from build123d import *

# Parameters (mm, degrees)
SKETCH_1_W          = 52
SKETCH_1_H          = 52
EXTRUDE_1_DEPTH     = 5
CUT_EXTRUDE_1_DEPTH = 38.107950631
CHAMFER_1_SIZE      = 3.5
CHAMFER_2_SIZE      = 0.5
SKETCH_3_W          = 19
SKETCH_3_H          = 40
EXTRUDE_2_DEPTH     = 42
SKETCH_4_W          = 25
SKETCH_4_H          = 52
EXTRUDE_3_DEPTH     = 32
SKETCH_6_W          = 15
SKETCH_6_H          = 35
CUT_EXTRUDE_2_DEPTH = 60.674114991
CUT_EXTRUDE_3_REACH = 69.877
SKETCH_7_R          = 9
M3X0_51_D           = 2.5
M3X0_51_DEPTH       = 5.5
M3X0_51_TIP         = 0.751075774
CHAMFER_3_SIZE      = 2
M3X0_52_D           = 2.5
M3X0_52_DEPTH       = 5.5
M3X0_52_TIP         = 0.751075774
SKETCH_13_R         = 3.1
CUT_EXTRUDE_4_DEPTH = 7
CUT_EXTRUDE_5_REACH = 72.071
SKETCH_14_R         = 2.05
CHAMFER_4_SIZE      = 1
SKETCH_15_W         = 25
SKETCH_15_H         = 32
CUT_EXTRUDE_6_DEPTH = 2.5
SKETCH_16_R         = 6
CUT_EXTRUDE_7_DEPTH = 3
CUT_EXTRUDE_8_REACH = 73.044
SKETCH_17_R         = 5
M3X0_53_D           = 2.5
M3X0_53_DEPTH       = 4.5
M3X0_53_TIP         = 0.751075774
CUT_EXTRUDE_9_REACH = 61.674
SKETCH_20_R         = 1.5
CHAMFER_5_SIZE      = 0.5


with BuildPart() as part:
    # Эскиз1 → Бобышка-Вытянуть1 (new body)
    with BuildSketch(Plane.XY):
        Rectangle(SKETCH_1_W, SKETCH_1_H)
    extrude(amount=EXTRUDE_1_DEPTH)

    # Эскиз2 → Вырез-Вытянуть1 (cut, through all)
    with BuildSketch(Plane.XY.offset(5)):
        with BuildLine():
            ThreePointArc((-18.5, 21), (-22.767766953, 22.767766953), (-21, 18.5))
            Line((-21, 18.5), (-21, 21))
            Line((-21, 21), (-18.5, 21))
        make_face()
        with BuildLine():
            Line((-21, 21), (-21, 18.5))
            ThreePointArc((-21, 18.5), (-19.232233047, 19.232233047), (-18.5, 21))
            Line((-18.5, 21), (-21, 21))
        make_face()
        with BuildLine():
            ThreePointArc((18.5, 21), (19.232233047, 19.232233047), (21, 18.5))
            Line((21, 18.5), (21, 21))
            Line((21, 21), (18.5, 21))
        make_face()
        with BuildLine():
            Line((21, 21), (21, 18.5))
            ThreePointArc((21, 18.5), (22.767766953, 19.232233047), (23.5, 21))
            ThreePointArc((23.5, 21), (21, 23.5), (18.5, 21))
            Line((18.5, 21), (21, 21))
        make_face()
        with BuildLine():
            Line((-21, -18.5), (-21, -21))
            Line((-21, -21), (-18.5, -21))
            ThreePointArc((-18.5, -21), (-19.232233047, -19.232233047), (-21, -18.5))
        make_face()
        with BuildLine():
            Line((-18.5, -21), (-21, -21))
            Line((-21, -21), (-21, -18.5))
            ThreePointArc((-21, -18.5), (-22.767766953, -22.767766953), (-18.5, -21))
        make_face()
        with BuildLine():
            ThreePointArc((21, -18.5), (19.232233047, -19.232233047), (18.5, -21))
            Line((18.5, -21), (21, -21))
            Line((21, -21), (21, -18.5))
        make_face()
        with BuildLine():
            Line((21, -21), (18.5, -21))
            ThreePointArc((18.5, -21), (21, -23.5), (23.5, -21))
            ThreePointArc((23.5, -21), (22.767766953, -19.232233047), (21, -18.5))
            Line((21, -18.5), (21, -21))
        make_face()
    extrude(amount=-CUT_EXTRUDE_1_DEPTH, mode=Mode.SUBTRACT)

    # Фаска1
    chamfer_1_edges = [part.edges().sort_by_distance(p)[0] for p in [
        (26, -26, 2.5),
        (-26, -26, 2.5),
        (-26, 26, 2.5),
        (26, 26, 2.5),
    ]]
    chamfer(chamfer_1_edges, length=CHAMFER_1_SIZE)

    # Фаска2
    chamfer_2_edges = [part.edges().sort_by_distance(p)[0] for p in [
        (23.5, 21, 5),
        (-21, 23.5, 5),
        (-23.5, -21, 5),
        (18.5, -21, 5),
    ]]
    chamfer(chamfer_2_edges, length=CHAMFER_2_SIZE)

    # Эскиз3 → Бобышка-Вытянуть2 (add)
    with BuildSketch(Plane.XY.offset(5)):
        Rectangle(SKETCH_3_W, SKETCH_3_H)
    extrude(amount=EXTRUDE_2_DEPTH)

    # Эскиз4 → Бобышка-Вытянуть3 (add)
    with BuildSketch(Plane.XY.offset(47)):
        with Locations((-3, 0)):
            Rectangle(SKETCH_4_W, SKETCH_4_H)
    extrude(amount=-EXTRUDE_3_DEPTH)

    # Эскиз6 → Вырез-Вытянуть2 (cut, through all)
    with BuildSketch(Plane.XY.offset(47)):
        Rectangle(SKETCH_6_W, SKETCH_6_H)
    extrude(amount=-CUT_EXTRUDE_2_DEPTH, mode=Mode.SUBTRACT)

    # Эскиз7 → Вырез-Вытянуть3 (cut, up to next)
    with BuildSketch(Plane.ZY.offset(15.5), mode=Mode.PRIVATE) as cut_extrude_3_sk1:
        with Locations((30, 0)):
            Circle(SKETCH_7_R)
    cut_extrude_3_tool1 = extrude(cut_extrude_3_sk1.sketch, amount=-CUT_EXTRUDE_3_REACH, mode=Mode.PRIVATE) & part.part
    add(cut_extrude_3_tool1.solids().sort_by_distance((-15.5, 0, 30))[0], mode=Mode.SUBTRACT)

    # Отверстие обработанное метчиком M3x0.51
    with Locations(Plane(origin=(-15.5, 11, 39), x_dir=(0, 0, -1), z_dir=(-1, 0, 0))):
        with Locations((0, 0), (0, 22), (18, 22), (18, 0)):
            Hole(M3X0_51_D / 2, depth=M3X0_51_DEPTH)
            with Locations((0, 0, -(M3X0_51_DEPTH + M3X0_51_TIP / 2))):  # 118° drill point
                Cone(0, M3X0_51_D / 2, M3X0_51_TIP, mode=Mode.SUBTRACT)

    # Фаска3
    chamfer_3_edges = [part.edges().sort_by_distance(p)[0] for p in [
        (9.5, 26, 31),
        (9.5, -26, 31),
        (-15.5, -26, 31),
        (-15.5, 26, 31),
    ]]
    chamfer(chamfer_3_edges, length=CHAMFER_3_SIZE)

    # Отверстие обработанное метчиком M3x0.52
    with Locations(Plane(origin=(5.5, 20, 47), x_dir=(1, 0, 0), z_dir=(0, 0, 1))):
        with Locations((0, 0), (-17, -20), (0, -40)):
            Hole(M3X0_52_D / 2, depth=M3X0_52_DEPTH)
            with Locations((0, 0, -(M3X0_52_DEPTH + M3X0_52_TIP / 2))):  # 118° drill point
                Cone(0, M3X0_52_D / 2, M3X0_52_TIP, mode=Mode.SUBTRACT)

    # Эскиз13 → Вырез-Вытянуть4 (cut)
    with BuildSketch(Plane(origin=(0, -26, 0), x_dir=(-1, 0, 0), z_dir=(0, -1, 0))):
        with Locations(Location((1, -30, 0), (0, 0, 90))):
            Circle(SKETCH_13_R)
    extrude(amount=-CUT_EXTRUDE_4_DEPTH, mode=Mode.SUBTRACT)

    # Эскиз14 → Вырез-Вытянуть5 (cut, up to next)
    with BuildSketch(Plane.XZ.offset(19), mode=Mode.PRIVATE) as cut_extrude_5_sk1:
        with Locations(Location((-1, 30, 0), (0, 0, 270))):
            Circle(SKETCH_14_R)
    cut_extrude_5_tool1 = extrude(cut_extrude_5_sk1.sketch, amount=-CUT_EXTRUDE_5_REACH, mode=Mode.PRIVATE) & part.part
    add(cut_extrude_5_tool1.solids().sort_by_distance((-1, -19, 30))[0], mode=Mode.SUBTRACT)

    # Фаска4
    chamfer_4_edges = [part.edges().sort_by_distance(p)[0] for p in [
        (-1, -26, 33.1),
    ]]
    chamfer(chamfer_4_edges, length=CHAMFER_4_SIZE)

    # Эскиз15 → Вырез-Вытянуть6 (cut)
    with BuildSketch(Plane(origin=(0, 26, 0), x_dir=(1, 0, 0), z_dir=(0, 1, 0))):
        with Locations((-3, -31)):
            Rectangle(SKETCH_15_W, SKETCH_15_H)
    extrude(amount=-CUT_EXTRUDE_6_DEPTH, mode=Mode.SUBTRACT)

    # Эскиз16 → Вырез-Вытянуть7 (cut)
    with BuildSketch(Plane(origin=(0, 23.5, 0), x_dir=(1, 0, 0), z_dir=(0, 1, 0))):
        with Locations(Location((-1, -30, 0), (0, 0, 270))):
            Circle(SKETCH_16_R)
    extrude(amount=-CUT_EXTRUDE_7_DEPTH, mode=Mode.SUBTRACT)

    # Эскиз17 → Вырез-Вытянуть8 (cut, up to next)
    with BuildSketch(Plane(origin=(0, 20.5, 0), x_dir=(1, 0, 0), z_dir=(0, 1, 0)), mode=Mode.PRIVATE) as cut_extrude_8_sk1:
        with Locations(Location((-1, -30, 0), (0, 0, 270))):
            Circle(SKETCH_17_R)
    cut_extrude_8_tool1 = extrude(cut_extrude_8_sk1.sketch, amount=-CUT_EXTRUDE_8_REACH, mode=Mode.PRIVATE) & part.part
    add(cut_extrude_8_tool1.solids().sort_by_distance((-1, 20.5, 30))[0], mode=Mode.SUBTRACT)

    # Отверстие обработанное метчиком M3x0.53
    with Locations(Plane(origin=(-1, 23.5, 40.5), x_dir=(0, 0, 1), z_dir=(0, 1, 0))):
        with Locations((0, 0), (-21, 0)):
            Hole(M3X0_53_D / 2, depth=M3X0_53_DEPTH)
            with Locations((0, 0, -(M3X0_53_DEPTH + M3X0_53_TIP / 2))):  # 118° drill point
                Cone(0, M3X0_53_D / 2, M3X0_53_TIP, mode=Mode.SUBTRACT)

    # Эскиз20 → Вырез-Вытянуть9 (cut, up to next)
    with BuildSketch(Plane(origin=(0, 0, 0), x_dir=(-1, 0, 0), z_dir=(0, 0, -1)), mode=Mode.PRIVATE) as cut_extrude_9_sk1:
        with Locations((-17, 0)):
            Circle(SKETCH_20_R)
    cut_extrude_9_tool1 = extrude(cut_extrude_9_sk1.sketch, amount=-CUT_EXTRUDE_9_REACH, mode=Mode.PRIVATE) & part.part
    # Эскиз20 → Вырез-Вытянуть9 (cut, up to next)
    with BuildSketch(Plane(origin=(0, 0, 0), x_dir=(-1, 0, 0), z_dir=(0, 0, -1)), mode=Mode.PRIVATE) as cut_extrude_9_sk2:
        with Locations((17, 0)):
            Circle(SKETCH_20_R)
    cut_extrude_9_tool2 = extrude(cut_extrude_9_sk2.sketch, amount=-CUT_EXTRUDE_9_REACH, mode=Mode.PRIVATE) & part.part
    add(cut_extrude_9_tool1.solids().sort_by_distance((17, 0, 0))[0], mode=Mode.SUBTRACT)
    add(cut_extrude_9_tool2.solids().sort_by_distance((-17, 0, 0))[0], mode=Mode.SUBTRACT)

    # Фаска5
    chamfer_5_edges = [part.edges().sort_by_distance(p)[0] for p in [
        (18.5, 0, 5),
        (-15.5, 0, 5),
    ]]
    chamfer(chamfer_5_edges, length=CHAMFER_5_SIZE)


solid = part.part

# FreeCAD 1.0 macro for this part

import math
import FreeCAD as App
import Part
import Sketcher
Q = App.Units.Quantity


def edges_at(feature, points):
    """Names of the edges that pass closest to the given points."""
    edges = feature.Shape.Edges
    near = lambda p: min(range(len(edges)), key=lambda i: edges[i].distToShape(Part.Vertex(*p))[0])
    return sorted({f"Edge{near(p) + 1}" for p in points})

doc = App.newDocument("Part")
params = doc.addObject("Spreadsheet::Sheet", "Params")
for row, (alias, value) in enumerate([
    ("sketch1_width", "52 mm"),
    ("pad1_length", "5 mm"),
    ("sketch2_radius", "2.5 mm"),
    ("chamfer_size", "3.5 mm"),
    ("chamfer2_size", "0.5 mm"),
    ("sketch3_width", "19 mm"),
    ("sketch3_height", "40 mm"),
    ("pad2_length", "42 mm"),
    ("sketch4_width", "25 mm"),
    ("sketch4_height", "52 mm"),
    ("pad3_length", "32 mm"),
    ("sketch5_width", "15 mm"),
    ("sketch5_height", "35 mm"),
    ("sketch6_diameter", "18 mm"),
    ("sketch7_diameter", "2.5 mm"),
    ("hole_diameter", "2.5 mm"),
    ("hole_depth", "5.5 mm"),
    ("chamfer3_size", "2 mm"),
    ("sketch8_diameter", "2.5 mm"),
    ("hole2_diameter", "2.5 mm"),
    ("hole2_depth", "5.5 mm"),
    ("sketch9_diameter", "6.2 mm"),
    ("pocket4_length", "7 mm"),
    ("sketch10_diameter", "4.1 mm"),
    ("chamfer4_size", "1 mm"),
    ("sketch11_width", "25 mm"),
    ("sketch11_height", "32 mm"),
    ("pocket6_length", "2.5 mm"),
    ("sketch12_diameter", "12 mm"),
    ("pocket7_length", "3 mm"),
    ("sketch13_diameter", "10 mm"),
    ("sketch14_diameter", "2.5 mm"),
    ("hole3_diameter", "2.5 mm"),
    ("hole3_depth", "4.5 mm"),
    ("sketch15_diameter", "3 mm"),
    ("sketch16_diameter", "3 mm"),
    ("chamfer5_size", "0.5 mm"),
], start=1):
    params.set(f"A{row}", alias)
    params.set(f"B{row}", "=" + value)
    params.setAlias(f"B{row}", alias)

body = doc.addObject("PartDesign::Body", "Body")

# Sketch on XY plane
sketch1 = body.newObject("Sketcher::SketchObject", "Sketch")
sketch1.AttachmentSupport = (doc.getObject("XY_Plane"), [""])
sketch1.MapMode = "FlatFace"
sketch1.addGeometry([
    Part.LineSegment(App.Vector(-26, 26, 0), App.Vector(-26, -26, 0)),
    Part.LineSegment(App.Vector(-26, -26, 0), App.Vector(26, -26, 0)),
    Part.LineSegment(App.Vector(26, -26, 0), App.Vector(26, 26, 0)),
    Part.LineSegment(App.Vector(26, 26, 0), App.Vector(-26, 26, 0)),
], False)
sketch1.addConstraint([
    Sketcher.Constraint("Coincident", 0, 2, 1, 1),
    Sketcher.Constraint("Coincident", 1, 2, 2, 1),
    Sketcher.Constraint("Coincident", 2, 2, 3, 1),
    Sketcher.Constraint("Coincident", 3, 2, 0, 1),
    Sketcher.Constraint("Vertical", 0),
    Sketcher.Constraint("Horizontal", 1),
    Sketcher.Constraint("Vertical", 2),
    Sketcher.Constraint("Horizontal", 3),
    Sketcher.Constraint("Symmetric", 0, 2, 2, 2, -1, 1),
    Sketcher.Constraint("Equal", 3, 0),
    Sketcher.Constraint("DistanceX", 1, 1, 1, 2, Q("52 mm")),
])
sketch1.setExpression("Constraints[10]", "Params.sketch1_width")
pad1 = body.newObject("PartDesign::Pad", "Pad")
pad1.Profile = sketch1
pad1.setExpression("Length", "Params.pad1_length")

# Sketch on XY plane
sketch2 = body.newObject("Sketcher::SketchObject", "Sketch001")
sketch2.AttachmentSupport = (doc.getObject("XY_Plane"), [""])
sketch2.MapMode = "FlatFace"
sketch2.AttachmentOffset = App.Placement(App.Vector(0, 0, 5), App.Rotation())
sketch2.addGeometry([
    Part.ArcOfCircle(Part.Circle(App.Vector(-21, 21, 0), App.Vector(0, 0, 1), 2.5), math.radians(0), math.radians(270)),  # 0
    Part.ArcOfCircle(Part.Circle(App.Vector(-21, 21, 0), App.Vector(0, 0, 1), 2.5), math.radians(-90), math.radians(0)),  # 1
    Part.ArcOfCircle(Part.Circle(App.Vector(21, 21, 0), App.Vector(0, 0, 1), 2.5), math.radians(180), math.radians(270)),  # 2
    Part.ArcOfCircle(Part.Circle(App.Vector(21, 21, 0), App.Vector(0, 0, 1), 2.5), math.radians(-90), math.radians(0)),  # 3
    Part.ArcOfCircle(Part.Circle(App.Vector(21, 21, 0), App.Vector(0, 0, 1), 2.5), math.radians(0), math.radians(180)),  # 4
    Part.ArcOfCircle(Part.Circle(App.Vector(-21, -21, 0), App.Vector(0, 0, 1), 2.5), math.radians(0), math.radians(90)),  # 5
    Part.ArcOfCircle(Part.Circle(App.Vector(-21, -21, 0), App.Vector(0, 0, 1), 2.5), math.radians(90), math.radians(360)),  # 6
    Part.ArcOfCircle(Part.Circle(App.Vector(21, -21, 0), App.Vector(0, 0, 1), 2.5), math.radians(90), math.radians(180)),  # 7
    Part.ArcOfCircle(Part.Circle(App.Vector(21, -21, 0), App.Vector(0, 0, 1), 2.5), math.radians(180), math.radians(360)),  # 8
    Part.ArcOfCircle(Part.Circle(App.Vector(21, -21, 0), App.Vector(0, 0, 1), 2.5), math.radians(0), math.radians(90)),  # 9
], False)
sketch2.addConstraint([
    Sketcher.Constraint("Tangent", 0, 1, 1, 2),
    Sketcher.Constraint("Coincident", 1, 1, 0, 2),
    Sketcher.Constraint("Tangent", 2, 2, 3, 1),
    Sketcher.Constraint("Tangent", 3, 2, 4, 1),
    Sketcher.Constraint("Tangent", 4, 2, 2, 1),
    Sketcher.Constraint("Tangent", 5, 1, 6, 2),
    Sketcher.Constraint("Coincident", 6, 1, 5, 2),
    Sketcher.Constraint("Tangent", 7, 2, 8, 1),
    Sketcher.Constraint("Tangent", 8, 2, 9, 1),
    Sketcher.Constraint("Tangent", 9, 2, 7, 1),
    Sketcher.Constraint("Equal", 1, 2),
    Sketcher.Constraint("Equal", 4, 5),
    Sketcher.Constraint("Equal", 6, 7),
    Sketcher.Constraint("Symmetric", 2, 3, 5, 3, -1, 1),
    Sketcher.Constraint("Symmetric", 0, 3, 7, 3, -1, 1),
    Sketcher.Constraint("Symmetric", 0, 3, 2, 3, -2),
    Sketcher.Constraint("Horizontal", 4, 3, 0, 1),
    Sketcher.Constraint("Horizontal", 0, 1, 3, 2),
    Sketcher.Constraint("Horizontal", 3, 2, 4, 2),
    Sketcher.Constraint("Horizontal", 9, 3, 5, 1),
    Sketcher.Constraint("Horizontal", 5, 1, 7, 2),
    Sketcher.Constraint("Horizontal", 7, 2, 8, 2),
    Sketcher.Constraint("Vertical", 6, 3, 1, 1),
    Sketcher.Constraint("Vertical", 9, 3, 2, 2),
    Sketcher.Constraint("Vertical", 1, 1, 6, 1),
    Sketcher.Constraint("Vertical", 2, 2, 9, 2),
    Sketcher.Constraint("Radius", 0, Q("2.5 mm")),
    Sketcher.Constraint("DistanceX", 0, 3, -1, 1, Q("21 mm")),
    Sketcher.Constraint("DistanceY", -1, 1, 0, 3, Q("21 mm")),
])
sketch2.setExpression("Constraints[26]", "Params.sketch2_radius")
pocket1 = body.newObject("PartDesign::Pocket", "Pocket")
pocket1.Profile = sketch2
pocket1.Type = "ThroughAll"
doc.recompute()

chamfer = body.newObject("PartDesign::Chamfer", "Chamfer")
chamfer.Base = (pocket1, edges_at(pocket1, [
    (26, -26, 2.5),
    (-26, -26, 2.5),
    (-26, 26, 2.5),
    (26, 26, 2.5),
]))
chamfer.setExpression("Size", "Params.chamfer_size")
doc.recompute()

chamfer2 = body.newObject("PartDesign::Chamfer", "Chamfer001")
chamfer2.Base = (chamfer, edges_at(chamfer, [
    (22.768, 19.232, 5),
    (-22.768, 22.768, 5),
    (-22.768, -22.768, 5),
    (19.232, -19.232, 5),
]))
chamfer2.setExpression("Size", "Params.chamfer2_size")

# Sketch on XY plane
sketch3 = body.newObject("Sketcher::SketchObject", "Sketch002")
sketch3.AttachmentSupport = (doc.getObject("XY_Plane"), [""])
sketch3.MapMode = "FlatFace"
sketch3.AttachmentOffset = App.Placement(App.Vector(0, 0, 5), App.Rotation())
sketch3.addGeometry([
    Part.LineSegment(App.Vector(-10, 20, 0), App.Vector(-10, -20, 0)),
    Part.LineSegment(App.Vector(-10, -20, 0), App.Vector(10, -20, 0)),
    Part.LineSegment(App.Vector(10, -20, 0), App.Vector(10, 20, 0)),
    Part.LineSegment(App.Vector(10, 20, 0), App.Vector(-10, 20, 0)),
], False)
sketch3.addConstraint([
    Sketcher.Constraint("Coincident", 0, 2, 1, 1),
    Sketcher.Constraint("Coincident", 1, 2, 2, 1),
    Sketcher.Constraint("Coincident", 2, 2, 3, 1),
    Sketcher.Constraint("Coincident", 3, 2, 0, 1),
    Sketcher.Constraint("Vertical", 0),
    Sketcher.Constraint("Horizontal", 1),
    Sketcher.Constraint("Vertical", 2),
    Sketcher.Constraint("Horizontal", 3),
    Sketcher.Constraint("Symmetric", 0, 2, 2, 2, -1, 1),
    Sketcher.Constraint("DistanceX", 1, 1, 1, 2, Q("19 mm")),
    Sketcher.Constraint("DistanceY", 0, 2, 0, 1, Q("40 mm")),
])
sketch3.setExpression("Constraints[9]", "Params.sketch3_width")
sketch3.setExpression("Constraints[10]", "Params.sketch3_height")
pad2 = body.newObject("PartDesign::Pad", "Pad001")
pad2.Profile = sketch3
pad2.setExpression("Length", "Params.pad2_length")

# Sketch on XY plane
sketch4 = body.newObject("Sketcher::SketchObject", "Sketch003")
sketch4.AttachmentSupport = (doc.getObject("XY_Plane"), [""])
sketch4.MapMode = "FlatFace"
sketch4.AttachmentOffset = App.Placement(App.Vector(0, 0, 47), App.Rotation())
sketch4.addGeometry([
    Part.LineSegment(App.Vector(-16, 26, 0), App.Vector(-16, -26, 0)),
    Part.LineSegment(App.Vector(-16, -26, 0), App.Vector(10, -26, 0)),
    Part.LineSegment(App.Vector(10, -26, 0), App.Vector(10, 26, 0)),
    Part.LineSegment(App.Vector(10, 26, 0), App.Vector(-16, 26, 0)),
], False)
sketch4.addConstraint([
    Sketcher.Constraint("Coincident", 0, 2, 1, 1),
    Sketcher.Constraint("Coincident", 1, 2, 2, 1),
    Sketcher.Constraint("Coincident", 2, 2, 3, 1),
    Sketcher.Constraint("Coincident", 3, 2, 0, 1),
    Sketcher.Constraint("Vertical", 0),
    Sketcher.Constraint("Horizontal", 1),
    Sketcher.Constraint("Vertical", 2),
    Sketcher.Constraint("Horizontal", 3),
    Sketcher.Constraint("DistanceX", 1, 1, 1, 2, Q("25 mm")),
    Sketcher.Constraint("DistanceY", 0, 2, 0, 1, Q("52 mm")),
    Sketcher.Constraint("DistanceY", 0, 2, -1, 1, Q("26 mm")),
    Sketcher.Constraint("DistanceX", 0, 2, -1, 1, Q("15.5 mm")),
])
sketch4.setExpression("Constraints[8]", "Params.sketch4_width")
sketch4.setExpression("Constraints[9]", "Params.sketch4_height")
pad3 = body.newObject("PartDesign::Pad", "Pad002")
pad3.Profile = sketch4
pad3.setExpression("Length", "Params.pad3_length")
pad3.Reversed = True

# Sketch on XY plane
sketch5 = body.newObject("Sketcher::SketchObject", "Sketch004")
sketch5.AttachmentSupport = (doc.getObject("XY_Plane"), [""])
sketch5.MapMode = "FlatFace"
sketch5.AttachmentOffset = App.Placement(App.Vector(0, 0, 47), App.Rotation())
sketch5.addGeometry([
    Part.LineSegment(App.Vector(-8, 18, 0), App.Vector(-8, -18, 0)),
    Part.LineSegment(App.Vector(-8, -18, 0), App.Vector(8, -18, 0)),
    Part.LineSegment(App.Vector(8, -18, 0), App.Vector(8, 18, 0)),
    Part.LineSegment(App.Vector(8, 18, 0), App.Vector(-8, 18, 0)),
], False)
sketch5.addConstraint([
    Sketcher.Constraint("Coincident", 0, 2, 1, 1),
    Sketcher.Constraint("Coincident", 1, 2, 2, 1),
    Sketcher.Constraint("Coincident", 2, 2, 3, 1),
    Sketcher.Constraint("Coincident", 3, 2, 0, 1),
    Sketcher.Constraint("Vertical", 0),
    Sketcher.Constraint("Horizontal", 1),
    Sketcher.Constraint("Vertical", 2),
    Sketcher.Constraint("Horizontal", 3),
    Sketcher.Constraint("Symmetric", 0, 2, 2, 2, -1, 1),
    Sketcher.Constraint("DistanceX", 1, 1, 1, 2, Q("15 mm")),
    Sketcher.Constraint("DistanceY", 0, 2, 0, 1, Q("35 mm")),
])
sketch5.setExpression("Constraints[9]", "Params.sketch5_width")
sketch5.setExpression("Constraints[10]", "Params.sketch5_height")
pocket2 = body.newObject("PartDesign::Pocket", "Pocket001")
pocket2.Profile = sketch5
pocket2.Type = "ThroughAll"

# Sketch on YZ plane
sketch6 = body.newObject("Sketcher::SketchObject", "Sketch005")
sketch6.AttachmentSupport = (doc.getObject("YZ_Plane"), [""])
sketch6.MapMode = "FlatFace"
sketch6.AttachmentOffset = App.Placement(App.Vector(0, 0, -15.5), App.Rotation())
sketch6.addGeometry(Part.Circle(App.Vector(0, 30, 0), App.Vector(0, 0, 1), 9), False)
sketch6.addConstraint([
    Sketcher.Constraint("PointOnObject", 0, 3, -2),
    Sketcher.Constraint("Diameter", 0, Q("18 mm")),
    Sketcher.Constraint("DistanceY", -1, 1, 0, 3, Q("30 mm")),
])
sketch6.setExpression("Constraints[1]", "Params.sketch6_diameter")
pocket3 = body.newObject("PartDesign::Pocket", "Pocket002")
pocket3.Profile = sketch6
pocket3.Type = "UpToFirst"
pocket3.Reversed = True

# Sketch on YZ plane
sketch7 = body.newObject("Sketcher::SketchObject", "Sketch006")
sketch7.AttachmentSupport = (doc.getObject("YZ_Plane"), [""])
sketch7.MapMode = "FlatFace"
sketch7.AttachmentOffset = App.Placement(App.Vector(0, 0, -15.5), App.Rotation())
sketch7.addGeometry([
    Part.Circle(App.Vector(11, 39, 0), App.Vector(0, 0, 1), 1.2),
    Part.Circle(App.Vector(-11, 39, 0), App.Vector(0, 0, 1), 1.2),
    Part.Circle(App.Vector(-11, 21, 0), App.Vector(0, 0, 1), 1.2),
    Part.Circle(App.Vector(11, 21, 0), App.Vector(0, 0, 1), 1.2),
], False)
sketch7.addConstraint([
    Sketcher.Constraint("Equal", 0, 1),
    Sketcher.Constraint("Equal", 1, 2),
    Sketcher.Constraint("Equal", 2, 3),
    Sketcher.Constraint("Symmetric", 0, 3, 1, 3, -2),
    Sketcher.Constraint("Symmetric", 2, 3, 3, 3, -2),
    Sketcher.Constraint("Vertical", 1, 3, 2, 3),
    Sketcher.Constraint("Diameter", 0, Q("2.5 mm")),
    Sketcher.Constraint("DistanceX", -1, 1, 0, 3, Q("11 mm")),
    Sketcher.Constraint("DistanceY", -1, 1, 0, 3, Q("39 mm")),
    Sketcher.Constraint("DistanceY", -1, 1, 2, 3, Q("21 mm")),
])
sketch7.setExpression("Constraints[6]", "Params.sketch7_diameter")
doc.recompute()
hole = body.newObject("PartDesign::Hole", "Hole")
hole.Profile = sketch7
hole.ThreadType = "None"
hole.setExpression("Diameter", "Params.hole_diameter")
hole.DepthType = "Dimension"
hole.setExpression("Depth", "Params.hole_depth")
hole.DrillPoint = "Angled"
hole.DrillPointAngle = 118
hole.Reversed = True
doc.recompute()

chamfer3 = body.newObject("PartDesign::Chamfer", "Chamfer002")
chamfer3.Base = (hole, edges_at(hole, [
    (9.5, 26, 31),
    (9.5, -26, 31),
    (-15.5, -26, 31),
    (-15.5, 26, 31),
]))
chamfer3.setExpression("Size", "Params.chamfer3_size")

# Sketch on XY plane
sketch8 = body.newObject("Sketcher::SketchObject", "Sketch007")
sketch8.AttachmentSupport = (doc.getObject("XY_Plane"), [""])
sketch8.MapMode = "FlatFace"
sketch8.AttachmentOffset = App.Placement(App.Vector(0, 0, 47), App.Rotation())
sketch8.addGeometry([
    Part.Circle(App.Vector(5.5, 20, 0), App.Vector(0, 0, 1), 1.2),
    Part.Circle(App.Vector(-11.5, 0, 0), App.Vector(0, 0, 1), 1.2),
    Part.Circle(App.Vector(5.5, -20, 0), App.Vector(0, 0, 1), 1.2),
], False)
sketch8.addConstraint([
    Sketcher.Constraint("Equal", 0, 1),
    Sketcher.Constraint("Equal", 1, 2),
    Sketcher.Constraint("Symmetric", 0, 3, 2, 3, -1),
    Sketcher.Constraint("PointOnObject", 1, 3, -1),
    Sketcher.Constraint("Diameter", 0, Q("2.5 mm")),
    Sketcher.Constraint("DistanceY", -1, 1, 0, 3, Q("20 mm")),
    Sketcher.Constraint("DistanceX", 1, 3, 0, 3, Q("17 mm")),
    Sketcher.Constraint("DistanceX", -1, 1, 0, 3, Q("5.5 mm")),
])
sketch8.setExpression("Constraints[4]", "Params.sketch8_diameter")
doc.recompute()
hole2 = body.newObject("PartDesign::Hole", "Hole001")
hole2.Profile = sketch8
hole2.ThreadType = "None"
hole2.setExpression("Diameter", "Params.hole2_diameter")
hole2.DepthType = "Dimension"
hole2.setExpression("Depth", "Params.hole2_depth")
hole2.DrillPoint = "Angled"
hole2.DrillPointAngle = 118

# Sketch on XZ plane
sketch9 = body.newObject("Sketcher::SketchObject", "Sketch008")
sketch9.AttachmentSupport = (doc.getObject("XZ_Plane"), [""])
sketch9.MapMode = "FlatFace"
sketch9.AttachmentOffset = App.Placement(App.Vector(0, 0, 26), App.Rotation())
sketch9.addGeometry(Part.Circle(App.Vector(-1, 30, 0), App.Vector(0, 0, 1), 3.1), False)
sketch9.addConstraint([
    Sketcher.Constraint("Diameter", 0, Q("6.2 mm")),
    Sketcher.Constraint("DistanceX", 0, 3, -1, 1, Q("1 mm")),
    Sketcher.Constraint("DistanceY", -1, 1, 0, 3, Q("30 mm")),
])
sketch9.setExpression("Constraints[0]", "Params.sketch9_diameter")
pocket4 = body.newObject("PartDesign::Pocket", "Pocket003")
pocket4.Profile = sketch9
pocket4.setExpression("Length", "Params.pocket4_length")

# Sketch on XZ plane
sketch10 = body.newObject("Sketcher::SketchObject", "Sketch009")
sketch10.AttachmentSupport = (doc.getObject("XZ_Plane"), [""])
sketch10.MapMode = "FlatFace"
sketch10.AttachmentOffset = App.Placement(App.Vector(0, 0, 19), App.Rotation())
sketch10.addGeometry(Part.Circle(App.Vector(-1, 30, 0), App.Vector(0, 0, 1), 2), False)
sketch10.addConstraint([
    Sketcher.Constraint("Diameter", 0, Q("4.1 mm")),
    Sketcher.Constraint("DistanceX", 0, 3, -1, 1, Q("1 mm")),
    Sketcher.Constraint("DistanceY", -1, 1, 0, 3, Q("30 mm")),
])
sketch10.setExpression("Constraints[0]", "Params.sketch10_diameter")
pocket5 = body.newObject("PartDesign::Pocket", "Pocket004")
pocket5.Profile = sketch10
pocket5.Type = "UpToFirst"
doc.recompute()

chamfer4 = body.newObject("PartDesign::Chamfer", "Chamfer003")
chamfer4.Base = (pocket5, edges_at(pocket5, [(-1, -26, 33.1)]))
chamfer4.setExpression("Size", "Params.chamfer4_size")

# Sketch on XZ plane
sketch11 = body.newObject("Sketcher::SketchObject", "Sketch010")
sketch11.AttachmentSupport = (doc.getObject("XZ_Plane"), [""])
sketch11.MapMode = "FlatFace"
sketch11.AttachmentOffset = App.Placement(App.Vector(0, 0, -26), App.Rotation())
sketch11.addGeometry([
    Part.LineSegment(App.Vector(-16, 15, 0), App.Vector(-16, 47, 0)),
    Part.LineSegment(App.Vector(-16, 47, 0), App.Vector(10, 47, 0)),
    Part.LineSegment(App.Vector(10, 47, 0), App.Vector(10, 15, 0)),
    Part.LineSegment(App.Vector(10, 15, 0), App.Vector(-16, 15, 0)),
], False)
sketch11.addConstraint([
    Sketcher.Constraint("Coincident", 0, 2, 1, 1),
    Sketcher.Constraint("Coincident", 1, 2, 2, 1),
    Sketcher.Constraint("Coincident", 2, 2, 3, 1),
    Sketcher.Constraint("Coincident", 3, 2, 0, 1),
    Sketcher.Constraint("Vertical", 0),
    Sketcher.Constraint("Horizontal", 1),
    Sketcher.Constraint("Vertical", 2),
    Sketcher.Constraint("Horizontal", 3),
    Sketcher.Constraint("DistanceX", 1, 1, 1, 2, Q("25 mm")),
    Sketcher.Constraint("DistanceY", 0, 1, 0, 2, Q("32 mm")),
    Sketcher.Constraint("DistanceY", -1, 1, 0, 2, Q("47 mm")),
    Sketcher.Constraint("DistanceX", 0, 2, -1, 1, Q("15.5 mm")),
])
sketch11.setExpression("Constraints[8]", "Params.sketch11_width")
sketch11.setExpression("Constraints[9]", "Params.sketch11_height")
pocket6 = body.newObject("PartDesign::Pocket", "Pocket005")
pocket6.Profile = sketch11
pocket6.setExpression("Length", "Params.pocket6_length")
pocket6.Reversed = True

# Sketch on XZ plane
sketch12 = body.newObject("Sketcher::SketchObject", "Sketch011")
sketch12.AttachmentSupport = (doc.getObject("XZ_Plane"), [""])
sketch12.MapMode = "FlatFace"
sketch12.AttachmentOffset = App.Placement(App.Vector(0, 0, -23.5), App.Rotation())
sketch12.addGeometry(Part.Circle(App.Vector(-1, 30, 0), App.Vector(0, 0, 1), 6), False)
sketch12.addConstraint([
    Sketcher.Constraint("Diameter", 0, Q("12 mm")),
    Sketcher.Constraint("DistanceX", 0, 3, -1, 1, Q("1 mm")),
    Sketcher.Constraint("DistanceY", -1, 1, 0, 3, Q("30 mm")),
])
sketch12.setExpression("Constraints[0]", "Params.sketch12_diameter")
pocket7 = body.newObject("PartDesign::Pocket", "Pocket006")
pocket7.Profile = sketch12
pocket7.setExpression("Length", "Params.pocket7_length")
pocket7.Reversed = True

# Sketch on XZ plane
sketch13 = body.newObject("Sketcher::SketchObject", "Sketch012")
sketch13.AttachmentSupport = (doc.getObject("XZ_Plane"), [""])
sketch13.MapMode = "FlatFace"
sketch13.AttachmentOffset = App.Placement(App.Vector(0, 0, -20.5), App.Rotation())
sketch13.addGeometry(Part.Circle(App.Vector(-1, 30, 0), App.Vector(0, 0, 1), 5), False)
sketch13.addConstraint([
    Sketcher.Constraint("Diameter", 0, Q("10 mm")),
    Sketcher.Constraint("DistanceX", 0, 3, -1, 1, Q("1 mm")),
    Sketcher.Constraint("DistanceY", -1, 1, 0, 3, Q("30 mm")),
])
sketch13.setExpression("Constraints[0]", "Params.sketch13_diameter")
pocket8 = body.newObject("PartDesign::Pocket", "Pocket007")
pocket8.Profile = sketch13
pocket8.Type = "UpToFirst"
pocket8.Reversed = True

# Sketch on XZ plane
sketch14 = body.newObject("Sketcher::SketchObject", "Sketch013")
sketch14.AttachmentSupport = (doc.getObject("XZ_Plane"), [""])
sketch14.MapMode = "FlatFace"
sketch14.AttachmentOffset = App.Placement(App.Vector(0, 0, -23.5), App.Rotation())
sketch14.addGeometry([
    Part.Circle(App.Vector(-1, 40.5, 0), App.Vector(0, 0, 1), 1.2),
    Part.Circle(App.Vector(-1, 19.5, 0), App.Vector(0, 0, 1), 1.2),
], False)
sketch14.addConstraint([
    Sketcher.Constraint("Equal", 0, 1),
    Sketcher.Constraint("Vertical", 0, 3, 1, 3),
    Sketcher.Constraint("Diameter", 0, Q("2.5 mm")),
    Sketcher.Constraint("DistanceX", 0, 3, -1, 1, Q("1 mm")),
    Sketcher.Constraint("DistanceY", 1, 3, 0, 3, Q("21 mm")),
    Sketcher.Constraint("DistanceY", -1, 1, 0, 3, Q("40.5 mm")),
])
sketch14.setExpression("Constraints[2]", "Params.sketch14_diameter")
doc.recompute()
hole3 = body.newObject("PartDesign::Hole", "Hole002")
hole3.Profile = sketch14
hole3.ThreadType = "None"
hole3.setExpression("Diameter", "Params.hole3_diameter")
hole3.DepthType = "Dimension"
hole3.setExpression("Depth", "Params.hole3_depth")
hole3.DrillPoint = "Angled"
hole3.DrillPointAngle = 118
hole3.Reversed = True

# Sketch on XY plane
sketch15 = body.newObject("Sketcher::SketchObject", "Sketch014")
sketch15.AttachmentSupport = (doc.getObject("XY_Plane"), [""])
sketch15.MapMode = "FlatFace"
sketch15.addGeometry(Part.Circle(App.Vector(17, 0, 0), App.Vector(0, 0, 1), 1.5), False)
sketch15.addConstraint([
    Sketcher.Constraint("PointOnObject", 0, 3, -1),
    Sketcher.Constraint("Diameter", 0, Q("3 mm")),
    Sketcher.Constraint("DistanceX", -1, 1, 0, 3, Q("17 mm")),
])
sketch15.setExpression("Constraints[1]", "Params.sketch15_diameter")
pocket9 = body.newObject("PartDesign::Pocket", "Pocket008")
pocket9.Profile = sketch15
pocket9.Type = "UpToFirst"
pocket9.Reversed = True

# Sketch on XY plane
sketch16 = body.newObject("Sketcher::SketchObject", "Sketch015")
sketch16.AttachmentSupport = (doc.getObject("XY_Plane"), [""])
sketch16.MapMode = "FlatFace"
sketch16.addGeometry(Part.Circle(App.Vector(-17, 0, 0), App.Vector(0, 0, 1), 1.5), False)
sketch16.addConstraint([
    Sketcher.Constraint("PointOnObject", 0, 3, -1),
    Sketcher.Constraint("Diameter", 0, Q("3 mm")),
    Sketcher.Constraint("DistanceX", 0, 3, -1, 1, Q("17 mm")),
])
sketch16.setExpression("Constraints[1]", "Params.sketch16_diameter")
pocket10 = body.newObject("PartDesign::Pocket", "Pocket009")
pocket10.Profile = sketch16
pocket10.Type = "UpToFirst"
pocket10.Reversed = True
doc.recompute()

chamfer5 = body.newObject("PartDesign::Chamfer", "Chamfer004")
chamfer5.Base = (pocket10, edges_at(pocket10, [(18.5, 0, 5), (-15.5, 0, 5)]))
chamfer5.setExpression("Size", "Params.chamfer5_size")

doc.recompute()
